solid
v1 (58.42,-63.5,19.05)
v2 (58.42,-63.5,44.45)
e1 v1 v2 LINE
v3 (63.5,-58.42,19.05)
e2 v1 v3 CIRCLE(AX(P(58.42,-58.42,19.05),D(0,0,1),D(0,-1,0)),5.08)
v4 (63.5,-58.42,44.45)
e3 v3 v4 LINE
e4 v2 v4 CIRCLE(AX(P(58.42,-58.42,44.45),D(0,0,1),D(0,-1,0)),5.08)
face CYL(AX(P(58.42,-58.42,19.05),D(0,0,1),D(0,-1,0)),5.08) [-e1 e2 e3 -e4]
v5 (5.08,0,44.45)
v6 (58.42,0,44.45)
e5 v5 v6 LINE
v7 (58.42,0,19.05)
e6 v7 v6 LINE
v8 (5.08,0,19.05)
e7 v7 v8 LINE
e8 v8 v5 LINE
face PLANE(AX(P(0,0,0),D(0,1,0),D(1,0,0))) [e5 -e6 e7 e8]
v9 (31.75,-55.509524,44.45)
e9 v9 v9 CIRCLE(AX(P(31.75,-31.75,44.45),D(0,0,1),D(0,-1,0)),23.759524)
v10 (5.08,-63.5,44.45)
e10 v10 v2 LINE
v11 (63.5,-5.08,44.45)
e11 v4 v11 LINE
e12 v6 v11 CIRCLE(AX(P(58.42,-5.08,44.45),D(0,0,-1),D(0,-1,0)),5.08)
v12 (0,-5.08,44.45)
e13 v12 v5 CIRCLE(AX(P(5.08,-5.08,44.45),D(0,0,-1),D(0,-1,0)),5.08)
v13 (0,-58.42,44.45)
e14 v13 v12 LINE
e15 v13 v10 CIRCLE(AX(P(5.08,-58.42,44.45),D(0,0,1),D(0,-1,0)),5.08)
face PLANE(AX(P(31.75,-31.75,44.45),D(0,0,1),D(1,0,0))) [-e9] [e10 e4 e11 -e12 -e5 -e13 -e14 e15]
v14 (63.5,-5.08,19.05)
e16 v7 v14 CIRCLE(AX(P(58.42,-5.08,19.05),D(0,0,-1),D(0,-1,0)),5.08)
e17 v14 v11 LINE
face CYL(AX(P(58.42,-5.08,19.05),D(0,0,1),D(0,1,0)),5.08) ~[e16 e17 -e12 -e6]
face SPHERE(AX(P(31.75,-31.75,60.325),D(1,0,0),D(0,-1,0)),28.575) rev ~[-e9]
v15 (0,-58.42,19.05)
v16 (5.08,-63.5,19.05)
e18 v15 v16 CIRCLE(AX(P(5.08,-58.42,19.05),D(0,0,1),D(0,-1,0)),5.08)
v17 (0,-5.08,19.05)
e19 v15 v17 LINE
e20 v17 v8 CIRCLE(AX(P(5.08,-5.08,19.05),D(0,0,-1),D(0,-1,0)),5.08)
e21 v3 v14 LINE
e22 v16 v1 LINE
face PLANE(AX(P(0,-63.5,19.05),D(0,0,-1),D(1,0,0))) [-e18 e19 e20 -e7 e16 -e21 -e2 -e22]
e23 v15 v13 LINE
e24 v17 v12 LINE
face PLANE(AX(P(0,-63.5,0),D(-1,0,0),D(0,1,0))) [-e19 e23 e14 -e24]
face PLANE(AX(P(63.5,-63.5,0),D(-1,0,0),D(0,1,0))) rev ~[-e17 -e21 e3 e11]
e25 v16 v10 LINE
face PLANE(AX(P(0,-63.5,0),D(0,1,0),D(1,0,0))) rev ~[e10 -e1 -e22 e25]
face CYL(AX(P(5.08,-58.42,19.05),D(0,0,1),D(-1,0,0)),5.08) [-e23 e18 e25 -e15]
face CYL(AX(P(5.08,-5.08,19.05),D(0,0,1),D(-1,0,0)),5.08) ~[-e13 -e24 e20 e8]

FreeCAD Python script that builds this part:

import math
import FreeCAD as App
import Part
import Sketcher
from FreeCAD import Vector
Q = App.Units.Quantity


def edges_at(feature, points):
    """Names of the edges that pass closest to the given points."""
    edges = feature.Shape.Edges
    near = lambda p: min(range(len(edges)), key=lambda i: edges[i].distToShape(Part.Vertex(*p))[0])
    return sorted({f"Edge{near(p) + 1}" for p in points})

doc = App.newDocument("Part")
body = doc.addObject("PartDesign::Body", "Body")

# Sketch on XY plane
sketch1 = body.newObject("Sketcher::SketchObject", "Sketch")
sketch1.AttachmentSupport = (doc.getObject("XY_Plane"), [""])
sketch1.MapMode = "FlatFace"
sketch1.addGeometry(Part.LineSegment(Vector(0, 0, 0), Vector(0, -63.5, 0)), False)
sketch1.addGeometry(Part.LineSegment(Vector(0, -63.5, 0), Vector(63.5, -63.5, 0)), False)
sketch1.addGeometry(Part.LineSegment(Vector(63.5, -63.5, 0), Vector(63.5, 0, 0)), False)
sketch1.addGeometry(Part.LineSegment(Vector(63.5, 0, 0), Vector(0, 0, 0)), False)
sketch1.addConstraint(Sketcher.Constraint("Coincident", 0, 2, 1, 1))
sketch1.addConstraint(Sketcher.Constraint("Coincident", 1, 2, 2, 1))
sketch1.addConstraint(Sketcher.Constraint("Coincident", 2, 2, 3, 1))
sketch1.addConstraint(Sketcher.Constraint("Coincident", 3, 2, 0, 1))
sketch1.addConstraint(Sketcher.Constraint("Vertical", 0))
sketch1.addConstraint(Sketcher.Constraint("Horizontal", 1))
sketch1.addConstraint(Sketcher.Constraint("Vertical", 2))
sketch1.addConstraint(Sketcher.Constraint("Horizontal", 3))
sketch1.addConstraint(Sketcher.Constraint("Coincident", 3, 2, -1, 1))
sketch1.addConstraint(Sketcher.Constraint("Equal", 3, 0))
sketch1.addConstraint(Sketcher.Constraint("DistanceX", 1, 1, 1, 2, Q("2.5 in")))
pad1 = body.newObject("PartDesign::Pad", "Pad")
pad1.Profile = sketch1
pad1.Length = Q("1.75 in")

# Sketch on XY plane
sketch2 = body.newObject("Sketcher::SketchObject", "Sketch001")
sketch2.AttachmentSupport = (doc.getObject("XY_Plane"), [""])
sketch2.MapMode = "FlatFace"
sketch2.AttachmentOffset = App.Placement(Vector(0, 0, 2.375 * 25.4), App.Rotation())
sketch2.addGeometry(Part.LineSegment(Vector(60.325, -31.75, 0), Vector(3.175, -31.75, 0)), False)
sketch2.addGeometry(Part.ArcOfCircle(Part.Circle(Vector(31.75, -31.75, 0), Vector(0, 0, 1), 28.575), math.radians(180), math.radians(360)), False)
sketch2.addGeometry(Part.LineSegment(Vector(3.175, -31.75, 0), Vector(60.325, -31.75, 0)), True)  # axis
sketch2.addConstraint(Sketcher.Constraint("Coincident", 0, 1, 1, 2))
sketch2.addConstraint(Sketcher.Constraint("Coincident", 1, 1, 0, 2))
sketch2.addConstraint(Sketcher.Constraint("Horizontal", 0))
sketch2.addConstraint(Sketcher.Constraint("Horizontal", 2))
sketch2.addConstraint(Sketcher.Constraint("Coincident", 2, 1, 1, 1))
sketch2.addConstraint(Sketcher.Constraint("Horizontal", 1, 3, 0, 1))
sketch2.addConstraint(Sketcher.Constraint("Equal", 0, 2))
sketch2.addConstraint(Sketcher.Constraint("Radius", 1, Q("1.125 in")))
sketch2.addConstraint(Sketcher.Constraint("DistanceX", -1, 1, 1, 3, Q("1.25 in")))
sketch2.addConstraint(Sketcher.Constraint("DistanceY", 1, 3, -1, 1, Q("1.25 in")))
groove = body.newObject("PartDesign::Groove", "Groove")
groove.Profile = sketch2
groove.ReferenceAxis = (sketch2, ["Axis0"])
groove.Angle = 360

# Sketch on XZ plane
sketch3 = body.newObject("Sketcher::SketchObject", "Sketch002")
sketch3.AttachmentSupport = (doc.getObject("XZ_Plane"), [""])
sketch3.MapMode = "FlatFace"
sketch3.AttachmentOffset = App.Placement(Vector(0, 0, 2.5 * 25.4), App.Rotation())
sketch3.addGeometry(Part.LineSegment(Vector(0, 19.05, 0), Vector(0, 0, 0)), False)
sketch3.addGeometry(Part.LineSegment(Vector(0, 0, 0), Vector(63.5, 0, 0)), False)
sketch3.addGeometry(Part.LineSegment(Vector(63.5, 0, 0), Vector(63.5, 19.05, 0)), False)
sketch3.addGeometry(Part.LineSegment(Vector(63.5, 19.05, 0), Vector(0, 19.05, 0)), False)
sketch3.addConstraint(Sketcher.Constraint("Coincident", 0, 2, 1, 1))
sketch3.addConstraint(Sketcher.Constraint("Coincident", 1, 2, 2, 1))
sketch3.addConstraint(Sketcher.Constraint("Coincident", 2, 2, 3, 1))
sketch3.addConstraint(Sketcher.Constraint("Coincident", 3, 2, 0, 1))
sketch3.addConstraint(Sketcher.Constraint("Vertical", 0))
sketch3.addConstraint(Sketcher.Constraint("Horizontal", 1))
sketch3.addConstraint(Sketcher.Constraint("Vertical", 2))
sketch3.addConstraint(Sketcher.Constraint("Horizontal", 3))
sketch3.addConstraint(Sketcher.Constraint("Coincident", 0, 2, -1, 1))
sketch3.addConstraint(Sketcher.Constraint("DistanceX", 1, 1, 1, 2, Q("2.5 in")))
sketch3.addConstraint(Sketcher.Constraint("DistanceY", 0, 2, 0, 1, Q("0.75 in")))
pocket1 = body.newObject("PartDesign::Pocket", "Pocket")
pocket1.Profile = sketch3
pocket1.Type = "ThroughAll"
doc.recompute()

fillet = body.newObject("PartDesign::Fillet", "Fillet")
fillet.Base = (pocket1, edges_at(pocket1, [
    (63.5, -63.5, 31.75),
    (63.5, 0, 31.75),
    (0, 0, 31.75),
    (0, -63.5, 31.75),
]))
fillet.Radius = Q("0.2 in")

doc.recompute()
